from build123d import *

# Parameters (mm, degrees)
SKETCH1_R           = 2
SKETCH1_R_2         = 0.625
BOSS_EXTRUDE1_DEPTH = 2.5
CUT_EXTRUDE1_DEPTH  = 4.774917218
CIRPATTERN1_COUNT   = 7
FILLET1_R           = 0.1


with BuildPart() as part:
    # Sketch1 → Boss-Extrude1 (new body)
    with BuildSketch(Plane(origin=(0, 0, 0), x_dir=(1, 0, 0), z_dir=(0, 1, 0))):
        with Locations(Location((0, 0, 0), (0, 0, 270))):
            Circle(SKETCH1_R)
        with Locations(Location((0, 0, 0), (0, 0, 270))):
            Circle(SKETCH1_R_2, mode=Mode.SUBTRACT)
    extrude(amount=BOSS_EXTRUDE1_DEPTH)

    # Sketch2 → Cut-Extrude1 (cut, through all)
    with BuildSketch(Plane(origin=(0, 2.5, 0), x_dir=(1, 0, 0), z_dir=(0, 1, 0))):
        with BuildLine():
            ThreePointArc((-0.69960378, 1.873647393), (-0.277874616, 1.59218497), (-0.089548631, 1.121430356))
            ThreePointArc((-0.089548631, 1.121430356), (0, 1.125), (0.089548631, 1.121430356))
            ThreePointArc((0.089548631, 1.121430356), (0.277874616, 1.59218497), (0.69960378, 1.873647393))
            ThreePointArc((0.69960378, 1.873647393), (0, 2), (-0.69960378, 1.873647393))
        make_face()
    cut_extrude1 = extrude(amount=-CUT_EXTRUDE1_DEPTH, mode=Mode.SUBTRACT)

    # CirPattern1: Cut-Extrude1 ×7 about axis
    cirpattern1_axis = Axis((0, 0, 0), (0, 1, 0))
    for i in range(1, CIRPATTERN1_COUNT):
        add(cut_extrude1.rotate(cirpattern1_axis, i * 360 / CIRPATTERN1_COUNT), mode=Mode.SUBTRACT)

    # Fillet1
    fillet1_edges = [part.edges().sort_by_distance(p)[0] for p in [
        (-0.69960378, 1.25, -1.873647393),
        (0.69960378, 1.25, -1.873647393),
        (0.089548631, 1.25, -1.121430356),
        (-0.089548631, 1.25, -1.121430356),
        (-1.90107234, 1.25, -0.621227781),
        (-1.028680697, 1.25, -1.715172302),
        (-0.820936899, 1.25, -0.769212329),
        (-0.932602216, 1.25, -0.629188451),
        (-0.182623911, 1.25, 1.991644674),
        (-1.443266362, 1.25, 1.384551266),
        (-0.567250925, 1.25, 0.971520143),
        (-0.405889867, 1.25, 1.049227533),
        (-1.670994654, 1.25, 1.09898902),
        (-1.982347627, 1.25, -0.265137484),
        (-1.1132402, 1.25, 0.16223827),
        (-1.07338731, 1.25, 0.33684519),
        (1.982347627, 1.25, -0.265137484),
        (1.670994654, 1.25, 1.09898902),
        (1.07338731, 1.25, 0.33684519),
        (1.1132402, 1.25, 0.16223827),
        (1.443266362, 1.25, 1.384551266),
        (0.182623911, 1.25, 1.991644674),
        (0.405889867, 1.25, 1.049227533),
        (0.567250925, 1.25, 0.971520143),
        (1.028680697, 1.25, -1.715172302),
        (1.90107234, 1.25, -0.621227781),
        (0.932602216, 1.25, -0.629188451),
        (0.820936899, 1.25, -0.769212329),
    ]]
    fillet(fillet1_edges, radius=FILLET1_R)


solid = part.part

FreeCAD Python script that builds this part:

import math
import FreeCAD as App
import Part
import Sketcher
from FreeCAD import Vector


def edges_at(feature, points):
    """Names of the edges that pass closest to the given points."""
    edges = feature.Shape.Edges
    near = lambda p: min(range(len(edges)), key=lambda i: edges[i].distToShape(Part.Vertex(*p))[0])
    return sorted({f"Edge{near(p) + 1}" for p in points})

doc = App.newDocument("Part")
body = doc.addObject("PartDesign::Body", "Body")

# Sketch on XZ plane
sketch1 = doc.addObject("Sketcher::SketchObject", "Sketch")
body.addObject(sketch1)
sketch1.AttachmentSupport = (doc.XZ_Plane, [""])
sketch1.MapMode = "FlatFace"
sketch1.addGeometry(Part.Circle(Vector(0, 0, 0), Vector(0, 0, 1), 2), False)
sketch1.addGeometry(Part.Circle(Vector(0, 0, 0), Vector(0, 0, 1), 0.625), False)
sketch1.addConstraint(Sketcher.Constraint("Coincident", 0, 3, -1, 1))
sketch1.addConstraint(Sketcher.Constraint("Coincident", 1, 3, -1, 1))
sketch1.addConstraint(Sketcher.Constraint("Diameter", 0, 4.0))
sketch1.addConstraint(Sketcher.Constraint("Diameter", 1, 1.25))
pad1 = doc.addObject("PartDesign::Pad", "Pad")
body.addObject(pad1)
pad1.Profile = sketch1
pad1.Length = 2.5
pad1.Reversed = True

# Sketch on XZ plane
sketch2 = doc.addObject("Sketcher::SketchObject", "Sketch001")
body.addObject(sketch2)
sketch2.AttachmentSupport = (doc.XZ_Plane, [""])
sketch2.MapMode = "FlatFace"
sketch2.AttachmentOffset = App.Placement(Vector(0, 0, -2.5), App.Rotation())
sketch2.addGeometry(Part.ArcOfCircle(Part.Circle(Vector(-0.942291, -1.053337, 0), Vector(0, 0, 1), 0.855457), math.radians(-73.519256), math.radians(-4.565504)), False)
sketch2.addGeometry(Part.ArcOfCircle(Part.Circle(Vector(0, 0, 0), Vector(0, 0, 1), 1.125), math.radians(-94.565504), math.radians(-85.434496)), False)
sketch2.addGeometry(Part.ArcOfCircle(Part.Circle(Vector(0.942291, -1.053337, 0), Vector(0, 0, 1), 0.855457), math.radians(-175.434496), math.radians(-106.480744)), False)
sketch2.addGeometry(Part.ArcOfCircle(Part.Circle(Vector(0, 0, 0), Vector(0, 0, 1), 2), math.radians(-110.475198), math.radians(-69.524802)), False)
sketch2.addConstraint(Sketcher.Constraint("Coincident", 0, 2, 1, 1))
sketch2.addConstraint(Sketcher.Constraint("Coincident", 1, 2, 2, 1))
sketch2.addConstraint(Sketcher.Constraint("Coincident", 2, 2, 3, 2))
sketch2.addConstraint(Sketcher.Constraint("Coincident", 3, 1, 0, 1))
sketch2.addConstraint(Sketcher.Constraint("Coincident", 1, 3, -1, 1))
sketch2.addConstraint(Sketcher.Constraint("Coincident", 3, 3, -1, 1))
sketch2.addConstraint(Sketcher.Constraint("Equal", 0, 2))
sketch2.addConstraint(Sketcher.Constraint("Symmetric", 0, 3, 2, 3, -2))
sketch2.addConstraint(Sketcher.Constraint("Radius", 3, 2.0))
sketch2.addConstraint(Sketcher.Constraint("Radius", 1, 1.125))
sketch2.addConstraint(Sketcher.Constraint("Radius", 0, 0.855457))
sketch2.addConstraint(Sketcher.Constraint("DistanceX", 0, 3, -1, 1, 0.942291))
sketch2.addConstraint(Sketcher.Constraint("DistanceX", 0, 2, -1, 1, 0.089549))
pocket1 = doc.addObject("PartDesign::Pocket", "Pocket")
body.addObject(pocket1)
pocket1.Profile = sketch2
pocket1.Type = "ThroughAll"
pocket1.Reversed = True
doc.recompute()

polarpattern = doc.addObject("PartDesign::PolarPattern", "PolarPattern")
body.addObject(polarpattern)
polarpattern.Originals = [pocket1]
polarpattern.Axis = (doc.Y_Axis, [""])
polarpattern.Angle = 360
polarpattern.Occurrences = 7
body.Tip = polarpattern
doc.recompute()

fillet = doc.addObject("PartDesign::Fillet", "Fillet")
body.addObject(fillet)
fillet.Base = (polarpattern, edges_at(polarpattern, [
    (-0.7, 1.25, -1.874),
    (0.7, 1.25, -1.874),
    (0.09, 1.25, -1.121),
    (-0.09, 1.25, -1.121),
    (-1.901, 1.25, -0.621),
    (-1.029, 1.25, -1.715),
    (-0.821, 1.25, -0.769),
    (-0.933, 1.25, -0.629),
    (-0.183, 1.25, 1.992),
    (-1.443, 1.25, 1.385),
    (-0.567, 1.25, 0.972),
    (-0.406, 1.25, 1.049),
    (-1.671, 1.25, 1.099),
    (-1.982, 1.25, -0.265),
    (-1.113, 1.25, 0.162),
    (-1.073, 1.25, 0.337),
    (1.982, 1.25, -0.265),
    (1.671, 1.25, 1.099),
    (1.073, 1.25, 0.337),
    (1.113, 1.25, 0.162),
    (1.443, 1.25, 1.385),
    (0.183, 1.25, 1.992),
    (0.406, 1.25, 1.049),
    (0.567, 1.25, 0.972),
    (1.029, 1.25, -1.715),
    (1.901, 1.25, -0.621),
    (0.933, 1.25, -0.629),
    (0.821, 1.25, -0.769),
]))
fillet.Radius = 0.1

doc.recompute()
